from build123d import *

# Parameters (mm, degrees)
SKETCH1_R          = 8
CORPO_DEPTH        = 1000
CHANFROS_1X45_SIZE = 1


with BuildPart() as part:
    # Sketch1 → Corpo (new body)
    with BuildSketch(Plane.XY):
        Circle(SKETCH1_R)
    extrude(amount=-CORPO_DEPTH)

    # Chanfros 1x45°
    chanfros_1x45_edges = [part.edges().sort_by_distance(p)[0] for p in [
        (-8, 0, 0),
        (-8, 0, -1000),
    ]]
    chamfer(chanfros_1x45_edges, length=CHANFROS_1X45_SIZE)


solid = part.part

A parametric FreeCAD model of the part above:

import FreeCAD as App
import Part
import Sketcher


def edges_at(feature, points):
    """Names of the edges that pass closest to the given points."""
    edges = feature.Shape.Edges
    near = lambda p: min(range(len(edges)), key=lambda i: edges[i].distToShape(Part.Vertex(*p))[0])
    return sorted({f"Edge{near(p) + 1}" for p in points})

doc = App.newDocument("Part")
params = doc.addObject("Spreadsheet::Sheet", "Params")
for row, (alias, value) in enumerate([
    ("sketch1_diameter", "16 mm"),
    ("pad1_length", "1000 mm"),
    ("chamfer_size", "1 mm"),
], start=1):
    params.set(f"A{row}", alias)
    params.set(f"B{row}", "=" + value)
    params.setAlias(f"B{row}", alias)

body = doc.addObject("PartDesign::Body", "Body")

sketch1 = body.newObject("Sketcher::SketchObject", "Sketch")
sketch1.AttachmentSupport = (doc.getObject("XY_Plane"), [""])
sketch1.MapMode = "FlatFace"
sketch1.addGeometry(Part.Circle(App.Vector(0, 0, 0), App.Vector(0, 0, 1), 8), False)
sketch1.addConstraint([
    Sketcher.Constraint("Coincident", 0, 3, -1, 1),
    Sketcher.Constraint("Diameter", 0, 16.0),
])
sketch1.setExpression("Constraints[1]", "Params.sketch1_diameter")
pad1 = body.newObject("PartDesign::Pad", "Pad")
pad1.Profile = sketch1
pad1.setExpression("Length", "Params.pad1_length")
pad1.Reversed = True
doc.recompute()

chamfer = body.newObject("PartDesign::Chamfer", "Chamfer")
chamfer.Base = (pad1, edges_at(pad1, [(-8, 0, 0), (-8, 0, -1000)]))
chamfer.setExpression("Size", "Params.chamfer_size")

doc.recompute()
